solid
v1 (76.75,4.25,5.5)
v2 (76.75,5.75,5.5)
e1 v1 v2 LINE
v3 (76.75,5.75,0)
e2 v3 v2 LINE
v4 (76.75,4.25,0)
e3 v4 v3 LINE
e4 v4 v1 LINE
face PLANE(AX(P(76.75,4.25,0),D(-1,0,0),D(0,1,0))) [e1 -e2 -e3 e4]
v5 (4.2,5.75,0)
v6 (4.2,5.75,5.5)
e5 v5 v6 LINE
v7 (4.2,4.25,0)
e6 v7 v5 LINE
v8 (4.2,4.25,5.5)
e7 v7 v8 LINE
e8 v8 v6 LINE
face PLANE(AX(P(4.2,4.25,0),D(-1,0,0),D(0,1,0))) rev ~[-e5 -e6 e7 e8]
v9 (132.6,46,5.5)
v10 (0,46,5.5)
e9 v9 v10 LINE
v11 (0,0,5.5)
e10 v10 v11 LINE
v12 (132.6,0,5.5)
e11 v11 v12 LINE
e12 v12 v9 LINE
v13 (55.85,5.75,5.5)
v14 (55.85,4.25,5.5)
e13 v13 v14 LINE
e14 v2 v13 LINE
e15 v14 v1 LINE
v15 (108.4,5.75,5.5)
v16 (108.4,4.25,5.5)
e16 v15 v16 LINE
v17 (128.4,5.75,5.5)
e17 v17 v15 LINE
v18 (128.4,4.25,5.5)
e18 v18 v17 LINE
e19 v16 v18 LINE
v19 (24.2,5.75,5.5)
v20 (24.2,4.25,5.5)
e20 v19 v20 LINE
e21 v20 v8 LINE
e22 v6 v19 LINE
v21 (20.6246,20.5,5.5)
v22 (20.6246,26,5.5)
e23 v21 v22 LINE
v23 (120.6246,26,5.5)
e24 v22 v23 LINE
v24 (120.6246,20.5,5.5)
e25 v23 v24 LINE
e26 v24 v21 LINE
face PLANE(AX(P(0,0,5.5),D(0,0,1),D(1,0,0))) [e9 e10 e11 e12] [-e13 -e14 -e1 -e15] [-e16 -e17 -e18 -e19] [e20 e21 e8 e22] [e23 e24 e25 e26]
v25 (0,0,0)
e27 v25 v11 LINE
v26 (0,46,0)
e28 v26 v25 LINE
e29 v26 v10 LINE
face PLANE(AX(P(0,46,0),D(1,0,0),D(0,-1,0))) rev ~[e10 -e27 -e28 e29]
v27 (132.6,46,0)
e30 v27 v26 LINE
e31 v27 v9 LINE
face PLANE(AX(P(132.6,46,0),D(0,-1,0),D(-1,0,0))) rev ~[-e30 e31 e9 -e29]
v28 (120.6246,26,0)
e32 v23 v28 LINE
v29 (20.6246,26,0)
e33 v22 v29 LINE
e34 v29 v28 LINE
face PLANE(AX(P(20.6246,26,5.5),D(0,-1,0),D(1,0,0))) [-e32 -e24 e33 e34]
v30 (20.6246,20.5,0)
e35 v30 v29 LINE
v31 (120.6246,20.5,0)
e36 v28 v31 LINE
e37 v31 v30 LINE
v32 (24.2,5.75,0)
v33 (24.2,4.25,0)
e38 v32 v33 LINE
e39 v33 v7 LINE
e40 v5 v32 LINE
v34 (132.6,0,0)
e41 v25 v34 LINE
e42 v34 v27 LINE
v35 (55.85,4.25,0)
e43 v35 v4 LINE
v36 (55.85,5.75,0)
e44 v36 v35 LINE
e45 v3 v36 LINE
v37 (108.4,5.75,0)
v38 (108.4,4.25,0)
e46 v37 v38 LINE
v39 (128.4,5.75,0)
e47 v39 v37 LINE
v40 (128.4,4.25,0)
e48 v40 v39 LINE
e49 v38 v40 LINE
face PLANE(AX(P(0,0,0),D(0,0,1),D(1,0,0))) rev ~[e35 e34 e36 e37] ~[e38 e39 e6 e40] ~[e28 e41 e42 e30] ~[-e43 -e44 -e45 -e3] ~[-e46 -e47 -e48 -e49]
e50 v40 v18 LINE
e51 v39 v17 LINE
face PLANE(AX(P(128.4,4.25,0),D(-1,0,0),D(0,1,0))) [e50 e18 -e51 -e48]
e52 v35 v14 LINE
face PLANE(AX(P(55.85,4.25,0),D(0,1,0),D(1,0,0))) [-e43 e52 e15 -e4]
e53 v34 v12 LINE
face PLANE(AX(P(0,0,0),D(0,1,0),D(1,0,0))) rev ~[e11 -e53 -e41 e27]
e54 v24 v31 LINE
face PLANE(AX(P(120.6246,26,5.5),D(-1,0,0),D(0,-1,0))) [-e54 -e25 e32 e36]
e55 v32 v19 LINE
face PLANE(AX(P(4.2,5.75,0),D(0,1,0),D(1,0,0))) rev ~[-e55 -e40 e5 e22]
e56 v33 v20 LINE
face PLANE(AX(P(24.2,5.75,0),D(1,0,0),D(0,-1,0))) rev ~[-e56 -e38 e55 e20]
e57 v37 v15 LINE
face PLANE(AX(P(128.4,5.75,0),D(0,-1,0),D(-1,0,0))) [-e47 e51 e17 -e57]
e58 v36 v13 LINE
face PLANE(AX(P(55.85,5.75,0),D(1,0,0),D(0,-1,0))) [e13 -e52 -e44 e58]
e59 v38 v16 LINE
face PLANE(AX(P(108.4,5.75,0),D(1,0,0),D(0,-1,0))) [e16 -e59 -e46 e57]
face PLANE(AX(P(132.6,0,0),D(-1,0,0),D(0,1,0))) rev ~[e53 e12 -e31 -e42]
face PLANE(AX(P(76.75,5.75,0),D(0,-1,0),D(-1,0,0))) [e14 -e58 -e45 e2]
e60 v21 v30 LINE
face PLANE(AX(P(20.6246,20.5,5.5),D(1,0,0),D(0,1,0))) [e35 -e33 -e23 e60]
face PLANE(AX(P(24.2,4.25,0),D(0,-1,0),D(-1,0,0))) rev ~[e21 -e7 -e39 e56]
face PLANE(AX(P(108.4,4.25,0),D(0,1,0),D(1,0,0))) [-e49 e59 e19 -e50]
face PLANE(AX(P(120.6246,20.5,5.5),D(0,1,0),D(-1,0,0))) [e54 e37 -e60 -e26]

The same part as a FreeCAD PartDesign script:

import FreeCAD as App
import Part
import Sketcher

V = App.Vector

doc = App.newDocument("Part")
params = doc.addObject("Spreadsheet::Sheet", "Params")
for row, (alias, value) in enumerate([
    ("sketch1_width", "20 mm"),
    ("sketch1_height", "46 mm"),
    ("sketch1_width2", "132.6 mm"),
    ("sketch1_width3", "20.9 mm"),
    ("sketch1_height2", "1.5 mm"),
    ("pad1_length", "5.5 mm"),
    ("sketch2_width", "100 mm"),
    ("sketch2_height", "5.5 mm"),
    ("pocket1_length", "5.5 mm"),
], start=1):
    params.set(f"A{row}", alias)
    params.set(f"B{row}", "=" + value)
    params.setAlias(f"B{row}", alias)

body = doc.addObject("PartDesign::Body", "Body")

sketch1 = body.newObject("Sketcher::SketchObject", "Sketch")
sketch1.AttachmentSupport = (doc.getObject("XY_Plane"), [""])
sketch1.MapMode = "FlatFace"
sketch1.addGeometry(Part.LineSegment(V(0, 46, 0), V(0, 0, 0)), False)
sketch1.addGeometry(Part.LineSegment(V(0, 0, 0), V(132.6, 0, 0)), False)
sketch1.addGeometry(Part.LineSegment(V(132.6, 0, 0), V(132.6, 46, 0)), False)
sketch1.addGeometry(Part.LineSegment(V(132.6, 46, 0), V(0, 46, 0)), False)
sketch1.addGeometry(Part.LineSegment(V(4.2, 4.2, 0), V(4.2, 5.8, 0)), False)
sketch1.addGeometry(Part.LineSegment(V(4.2, 5.8, 0), V(24.2, 5.8, 0)), False)
sketch1.addGeometry(Part.LineSegment(V(24.2, 5.8, 0), V(24.2, 4.2, 0)), False)
sketch1.addGeometry(Part.LineSegment(V(24.2, 4.2, 0), V(4.2, 4.2, 0)), False)
sketch1.addGeometry(Part.LineSegment(V(76.8, 4.2, 0), V(55.9, 4.2, 0)), False)
sketch1.addGeometry(Part.LineSegment(V(55.9, 4.2, 0), V(55.9, 5.8, 0)), False)
sketch1.addGeometry(Part.LineSegment(V(55.9, 5.8, 0), V(76.8, 5.8, 0)), False)
sketch1.addGeometry(Part.LineSegment(V(76.8, 5.8, 0), V(76.8, 4.2, 0)), False)
sketch1.addGeometry(Part.LineSegment(V(128.4, 4.2, 0), V(108.4, 4.2, 0)), False)
sketch1.addGeometry(Part.LineSegment(V(108.4, 4.2, 0), V(108.4, 5.8, 0)), False)
sketch1.addGeometry(Part.LineSegment(V(108.4, 5.8, 0), V(128.4, 5.8, 0)), False)
sketch1.addGeometry(Part.LineSegment(V(128.4, 5.8, 0), V(128.4, 4.2, 0)), False)
sketch1.addConstraint(Sketcher.Constraint("Coincident", 0, 2, 1, 1))
sketch1.addConstraint(Sketcher.Constraint("Coincident", 1, 2, 2, 1))
sketch1.addConstraint(Sketcher.Constraint("Coincident", 2, 2, 3, 1))
sketch1.addConstraint(Sketcher.Constraint("Coincident", 3, 2, 0, 1))
sketch1.addConstraint(Sketcher.Constraint("Coincident", 4, 2, 5, 1))
sketch1.addConstraint(Sketcher.Constraint("Coincident", 5, 2, 6, 1))
sketch1.addConstraint(Sketcher.Constraint("Coincident", 6, 2, 7, 1))
sketch1.addConstraint(Sketcher.Constraint("Coincident", 7, 2, 4, 1))
sketch1.addConstraint(Sketcher.Constraint("Coincident", 8, 2, 9, 1))
sketch1.addConstraint(Sketcher.Constraint("Coincident", 9, 2, 10, 1))
sketch1.addConstraint(Sketcher.Constraint("Coincident", 10, 2, 11, 1))
sketch1.addConstraint(Sketcher.Constraint("Coincident", 11, 2, 8, 1))
sketch1.addConstraint(Sketcher.Constraint("Coincident", 12, 2, 13, 1))
sketch1.addConstraint(Sketcher.Constraint("Coincident", 13, 2, 14, 1))
sketch1.addConstraint(Sketcher.Constraint("Coincident", 14, 2, 15, 1))
sketch1.addConstraint(Sketcher.Constraint("Coincident", 15, 2, 12, 1))
sketch1.addConstraint(Sketcher.Constraint("Vertical", 0))
sketch1.addConstraint(Sketcher.Constraint("Horizontal", 1))
sketch1.addConstraint(Sketcher.Constraint("Vertical", 2))
sketch1.addConstraint(Sketcher.Constraint("Horizontal", 3))
sketch1.addConstraint(Sketcher.Constraint("Vertical", 4))
sketch1.addConstraint(Sketcher.Constraint("Horizontal", 5))
sketch1.addConstraint(Sketcher.Constraint("Vertical", 6))
sketch1.addConstraint(Sketcher.Constraint("Horizontal", 7))
sketch1.addConstraint(Sketcher.Constraint("Horizontal", 8))
sketch1.addConstraint(Sketcher.Constraint("Vertical", 9))
sketch1.addConstraint(Sketcher.Constraint("Horizontal", 10))
sketch1.addConstraint(Sketcher.Constraint("Vertical", 11))
sketch1.addConstraint(Sketcher.Constraint("Horizontal", 12))
sketch1.addConstraint(Sketcher.Constraint("Vertical", 13))
sketch1.addConstraint(Sketcher.Constraint("Horizontal", 14))
sketch1.addConstraint(Sketcher.Constraint("Vertical", 15))
sketch1.addConstraint(Sketcher.Constraint("Coincident", 0, 2, -1, 1))
sketch1.addConstraint(Sketcher.Constraint("Horizontal", 7, 2, 8, 2))
sketch1.addConstraint(Sketcher.Constraint("Horizontal", 5, 2, 9, 2))
sketch1.addConstraint(Sketcher.Constraint("Horizontal", 11, 2, 12, 2))
sketch1.addConstraint(Sketcher.Constraint("Horizontal", 10, 2, 13, 2))
sketch1.addConstraint(Sketcher.Constraint("Equal", 7, 12))
sketch1.addConstraint(Sketcher.Constraint("DistanceX", 5, 1, 5, 2, 20.0))
sketch1.addConstraint(Sketcher.Constraint("DistanceY", 0, 2, 0, 1, 46.0))
sketch1.addConstraint(Sketcher.Constraint("DistanceX", 1, 1, 1, 2, 132.6))
sketch1.addConstraint(Sketcher.Constraint("DistanceX", 8, 2, 8, 1, 20.9))
sketch1.addConstraint(Sketcher.Constraint("DistanceY", 4, 1, 4, 2, 1.5))
sketch1.addConstraint(Sketcher.Constraint("DistanceX", -1, 1, 4, 2, 4.2))
sketch1.addConstraint(Sketcher.Constraint("DistanceX", -1, 1, 12, 2, 108.4))
sketch1.addConstraint(Sketcher.Constraint("DistanceY", -1, 1, 4, 2, 5.75))
sketch1.addConstraint(Sketcher.Constraint("DistanceX", -1, 1, 8, 2, 55.85))
sketch1.setExpression("Constraints[38]", "Params.sketch1_width")
sketch1.setExpression("Constraints[39]", "Params.sketch1_height")
sketch1.setExpression("Constraints[40]", "Params.sketch1_width2")
sketch1.setExpression("Constraints[41]", "Params.sketch1_width3")
sketch1.setExpression("Constraints[42]", "Params.sketch1_height2")
pad1 = body.newObject("PartDesign::Pad", "Pad")
pad1.Profile = sketch1
pad1.setExpression("Length", "Params.pad1_length")

sketch2 = body.newObject("Sketcher::SketchObject", "Sketch001")
sketch2.AttachmentSupport = (doc.getObject("XY_Plane"), [""])
sketch2.MapMode = "FlatFace"
sketch2.AttachmentOffset = App.Placement(V(0, 0, 5.5), App.Rotation())
sketch2.addGeometry(Part.LineSegment(V(121, 26, 0), V(21, 26, 0)), False)
sketch2.addGeometry(Part.LineSegment(V(21, 26, 0), V(21, 20, 0)), False)
sketch2.addGeometry(Part.LineSegment(V(21, 20, 0), V(121, 20, 0)), False)
sketch2.addGeometry(Part.LineSegment(V(121, 20, 0), V(121, 26, 0)), False)
sketch2.addConstraint(Sketcher.Constraint("Coincident", 0, 2, 1, 1))
sketch2.addConstraint(Sketcher.Constraint("Coincident", 1, 2, 2, 1))
sketch2.addConstraint(Sketcher.Constraint("Coincident", 2, 2, 3, 1))
sketch2.addConstraint(Sketcher.Constraint("Coincident", 3, 2, 0, 1))
sketch2.addConstraint(Sketcher.Constraint("Horizontal", 0))
sketch2.addConstraint(Sketcher.Constraint("Vertical", 1))
sketch2.addConstraint(Sketcher.Constraint("Horizontal", 2))
sketch2.addConstraint(Sketcher.Constraint("Vertical", 3))
sketch2.addConstraint(Sketcher.Constraint("DistanceX", 0, 2, 0, 1, 100.0))
sketch2.addConstraint(Sketcher.Constraint("DistanceY", 1, 2, 1, 1, 5.5))
sketch2.addConstraint(Sketcher.Constraint("DistanceY", -1, 1, 0, 2, 26.0))
sketch2.addConstraint(Sketcher.Constraint("DistanceX", -1, 1, 0, 2, 20.6246))
sketch2.setExpression("Constraints[8]", "Params.sketch2_width")
sketch2.setExpression("Constraints[9]", "Params.sketch2_height")
pocket1 = body.newObject("PartDesign::Pocket", "Pocket")
pocket1.Profile = sketch2
pocket1.setExpression("Length", "Params.pocket1_length")

doc.recompute()
